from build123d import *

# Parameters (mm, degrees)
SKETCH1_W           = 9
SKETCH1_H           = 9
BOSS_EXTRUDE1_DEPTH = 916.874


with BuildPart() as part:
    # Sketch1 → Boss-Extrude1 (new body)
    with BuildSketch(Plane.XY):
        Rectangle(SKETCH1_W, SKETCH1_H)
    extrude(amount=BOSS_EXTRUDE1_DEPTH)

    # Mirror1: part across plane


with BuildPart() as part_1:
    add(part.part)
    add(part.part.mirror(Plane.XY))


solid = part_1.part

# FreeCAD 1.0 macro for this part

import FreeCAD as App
import Part
import Sketcher

V = App.Vector

doc = App.newDocument("Part")
body = doc.addObject("PartDesign::Body", "Body")

# Sketch on XY plane
sketch1 = body.newObject("Sketcher::SketchObject", "Sketch")
sketch1.AttachmentSupport = (doc.getObject("XY_Plane"), [""])
sketch1.MapMode = "FlatFace"
sketch1.addGeometry([
    Part.LineSegment(V(-4, 4, 0), V(-4, -4, 0)),
    Part.LineSegment(V(-4, -4, 0), V(4, -4, 0)),
    Part.LineSegment(V(4, -4, 0), V(4, 4, 0)),
    Part.LineSegment(V(4, 4, 0), V(-4, 4, 0)),
], False)
sketch1.addConstraint([
    Sketcher.Constraint("Coincident", 0, 2, 1, 1),
    Sketcher.Constraint("Coincident", 1, 2, 2, 1),
    Sketcher.Constraint("Coincident", 2, 2, 3, 1),
    Sketcher.Constraint("Coincident", 3, 2, 0, 1),
    Sketcher.Constraint("Vertical", 0),
    Sketcher.Constraint("Horizontal", 1),
    Sketcher.Constraint("Vertical", 2),
    Sketcher.Constraint("Horizontal", 3),
    Sketcher.Constraint("Symmetric", 0, 2, 2, 2, -1, 1),
    Sketcher.Constraint("Equal", 3, 0),
    Sketcher.Constraint("DistanceX", 1, 1, 1, 2, 9.0),
])
pad1 = body.newObject("PartDesign::Pad", "Pad")
pad1.Profile = sketch1
pad1.Length = 916.874
body2 = doc.addObject("PartDesign::Body", "Body001")
doc.recompute()

body2.BaseFeature = body
doc.recompute()

mirroring = doc.addObject("Part::Mirroring", "Mirroring")
mirroring.Source = body
mirroring.Base = V(0, 0, 0)
mirroring.Normal = V(0, 0, 1)
body3 = doc.addObject("PartDesign::Body", "Body002")
body3.BaseFeature = mirroring
boolean = body2.newObject("PartDesign::Boolean", "Boolean")
boolean.Type = "Fuse"
boolean.addObjects([body3])
doc.recompute()
mirroring.Visibility = False

doc.recompute()
